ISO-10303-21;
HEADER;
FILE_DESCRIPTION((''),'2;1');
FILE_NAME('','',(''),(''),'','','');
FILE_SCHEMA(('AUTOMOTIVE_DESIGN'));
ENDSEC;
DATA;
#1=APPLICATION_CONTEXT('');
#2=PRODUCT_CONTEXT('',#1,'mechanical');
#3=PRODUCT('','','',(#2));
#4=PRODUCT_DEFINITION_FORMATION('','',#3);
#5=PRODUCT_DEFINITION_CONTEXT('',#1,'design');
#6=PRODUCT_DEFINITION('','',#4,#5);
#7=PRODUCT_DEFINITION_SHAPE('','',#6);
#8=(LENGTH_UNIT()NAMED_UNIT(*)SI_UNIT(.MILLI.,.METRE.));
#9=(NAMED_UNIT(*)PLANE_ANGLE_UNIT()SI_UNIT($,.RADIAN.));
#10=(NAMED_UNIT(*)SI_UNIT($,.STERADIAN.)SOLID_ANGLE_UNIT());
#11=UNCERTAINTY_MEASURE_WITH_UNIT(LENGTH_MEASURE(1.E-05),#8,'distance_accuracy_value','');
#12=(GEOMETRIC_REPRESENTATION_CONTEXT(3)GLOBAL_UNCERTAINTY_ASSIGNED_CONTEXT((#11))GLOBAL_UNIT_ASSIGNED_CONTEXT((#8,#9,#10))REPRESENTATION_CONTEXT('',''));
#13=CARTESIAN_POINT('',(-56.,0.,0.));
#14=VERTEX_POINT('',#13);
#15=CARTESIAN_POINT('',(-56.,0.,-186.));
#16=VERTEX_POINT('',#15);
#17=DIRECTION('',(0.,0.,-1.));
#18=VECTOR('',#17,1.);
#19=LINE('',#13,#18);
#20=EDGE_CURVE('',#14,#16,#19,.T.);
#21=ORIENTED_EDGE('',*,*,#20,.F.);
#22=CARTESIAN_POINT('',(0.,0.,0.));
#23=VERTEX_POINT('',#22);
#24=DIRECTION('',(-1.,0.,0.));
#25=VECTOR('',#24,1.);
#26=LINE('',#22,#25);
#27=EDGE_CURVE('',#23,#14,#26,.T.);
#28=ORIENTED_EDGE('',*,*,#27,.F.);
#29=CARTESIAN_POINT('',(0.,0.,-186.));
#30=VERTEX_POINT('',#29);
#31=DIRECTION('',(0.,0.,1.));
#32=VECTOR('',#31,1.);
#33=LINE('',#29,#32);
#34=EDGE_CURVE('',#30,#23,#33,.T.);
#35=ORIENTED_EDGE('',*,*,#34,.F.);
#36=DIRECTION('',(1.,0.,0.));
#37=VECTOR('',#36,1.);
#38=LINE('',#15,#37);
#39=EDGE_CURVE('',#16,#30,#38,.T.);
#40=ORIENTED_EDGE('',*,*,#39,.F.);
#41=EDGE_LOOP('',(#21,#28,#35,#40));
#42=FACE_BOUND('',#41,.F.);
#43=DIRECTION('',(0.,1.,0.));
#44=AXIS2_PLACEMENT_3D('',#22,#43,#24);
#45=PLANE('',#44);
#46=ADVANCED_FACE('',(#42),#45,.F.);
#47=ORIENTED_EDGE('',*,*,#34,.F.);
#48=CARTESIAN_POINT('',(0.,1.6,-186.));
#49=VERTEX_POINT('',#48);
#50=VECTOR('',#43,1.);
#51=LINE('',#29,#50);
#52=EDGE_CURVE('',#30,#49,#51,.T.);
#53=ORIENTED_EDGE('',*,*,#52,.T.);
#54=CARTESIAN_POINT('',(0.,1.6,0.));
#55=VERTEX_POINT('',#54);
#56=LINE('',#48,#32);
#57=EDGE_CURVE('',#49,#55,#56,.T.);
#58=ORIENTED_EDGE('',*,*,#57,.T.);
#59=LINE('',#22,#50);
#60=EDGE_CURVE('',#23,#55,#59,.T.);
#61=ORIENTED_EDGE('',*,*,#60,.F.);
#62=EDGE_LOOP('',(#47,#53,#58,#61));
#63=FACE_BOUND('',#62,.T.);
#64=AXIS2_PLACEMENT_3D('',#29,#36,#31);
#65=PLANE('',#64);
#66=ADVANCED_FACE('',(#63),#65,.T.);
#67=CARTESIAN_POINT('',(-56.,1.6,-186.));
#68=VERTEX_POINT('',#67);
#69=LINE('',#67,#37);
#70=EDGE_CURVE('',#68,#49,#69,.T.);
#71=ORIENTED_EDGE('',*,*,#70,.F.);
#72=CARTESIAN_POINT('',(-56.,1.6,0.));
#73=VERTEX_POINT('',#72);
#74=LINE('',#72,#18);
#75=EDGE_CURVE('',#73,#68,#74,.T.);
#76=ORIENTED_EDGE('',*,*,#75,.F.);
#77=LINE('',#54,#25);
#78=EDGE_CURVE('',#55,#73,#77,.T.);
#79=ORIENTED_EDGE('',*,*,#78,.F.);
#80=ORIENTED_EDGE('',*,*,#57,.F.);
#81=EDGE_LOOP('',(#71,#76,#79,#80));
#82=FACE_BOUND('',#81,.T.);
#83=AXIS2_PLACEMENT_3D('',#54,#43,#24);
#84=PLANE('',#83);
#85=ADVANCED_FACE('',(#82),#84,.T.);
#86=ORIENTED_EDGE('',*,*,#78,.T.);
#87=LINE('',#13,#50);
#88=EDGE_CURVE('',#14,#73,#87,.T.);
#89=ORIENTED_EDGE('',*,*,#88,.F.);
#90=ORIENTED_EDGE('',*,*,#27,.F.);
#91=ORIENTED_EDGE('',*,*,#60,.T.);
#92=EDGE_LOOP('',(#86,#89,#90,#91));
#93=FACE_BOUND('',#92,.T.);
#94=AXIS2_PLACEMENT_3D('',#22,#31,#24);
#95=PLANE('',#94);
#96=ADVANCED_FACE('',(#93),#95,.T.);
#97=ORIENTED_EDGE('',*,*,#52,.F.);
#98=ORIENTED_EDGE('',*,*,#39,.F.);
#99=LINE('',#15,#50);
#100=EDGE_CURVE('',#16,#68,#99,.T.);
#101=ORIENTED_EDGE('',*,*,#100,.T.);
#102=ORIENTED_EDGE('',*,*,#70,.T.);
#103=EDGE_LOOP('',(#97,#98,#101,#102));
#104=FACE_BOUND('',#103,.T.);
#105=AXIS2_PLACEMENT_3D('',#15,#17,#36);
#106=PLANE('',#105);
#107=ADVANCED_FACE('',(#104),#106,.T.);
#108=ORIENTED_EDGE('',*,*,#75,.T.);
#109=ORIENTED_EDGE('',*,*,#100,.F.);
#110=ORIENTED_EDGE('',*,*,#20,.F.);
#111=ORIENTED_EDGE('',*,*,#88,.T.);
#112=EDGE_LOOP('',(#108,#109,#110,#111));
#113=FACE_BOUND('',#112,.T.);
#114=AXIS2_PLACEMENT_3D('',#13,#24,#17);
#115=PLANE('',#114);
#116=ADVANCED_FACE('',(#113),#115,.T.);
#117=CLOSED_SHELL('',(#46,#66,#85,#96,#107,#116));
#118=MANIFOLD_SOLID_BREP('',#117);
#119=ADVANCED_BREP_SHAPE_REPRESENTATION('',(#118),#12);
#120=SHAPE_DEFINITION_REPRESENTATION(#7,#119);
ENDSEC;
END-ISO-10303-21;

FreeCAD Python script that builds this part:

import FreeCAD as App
import Part
import Sketcher
from FreeCAD import Vector
Q = App.Units.Quantity

doc = App.newDocument("Part")
body = doc.addObject("PartDesign::Body", "Body")

sketch1 = body.newObject("Sketcher::SketchObject", "Sketch")
sketch1.AttachmentSupport = (doc.getObject("XZ_Plane"), [""])
sketch1.MapMode = "FlatFace"
sketch1.addGeometry([
    Part.LineSegment(Vector(-56, 0, 0), Vector(0, 0, 0)),
    Part.LineSegment(Vector(0, 0, 0), Vector(0, -186, 0)),
    Part.LineSegment(Vector(0, -186, 0), Vector(-56, -186, 0)),
    Part.LineSegment(Vector(-56, -186, 0), Vector(-56, 0, 0)),
], False)
sketch1.addConstraint([
    Sketcher.Constraint("Coincident", 0, 2, 1, 1),
    Sketcher.Constraint("Coincident", 1, 2, 2, 1),
    Sketcher.Constraint("Coincident", 2, 2, 3, 1),
    Sketcher.Constraint("Coincident", 3, 2, 0, 1),
    Sketcher.Constraint("Horizontal", 0),
    Sketcher.Constraint("Vertical", 1),
    Sketcher.Constraint("Horizontal", 2),
    Sketcher.Constraint("Vertical", 3),
    Sketcher.Constraint("Coincident", 0, 2, -1, 1),
    Sketcher.Constraint("DistanceX", 0, 1, 0, 2, Q("56 mm")),
    Sketcher.Constraint("DistanceY", 1, 2, 1, 1, Q("186 mm")),
])
pad1 = body.newObject("PartDesign::Pad", "Pad")
pad1.Profile = sketch1
pad1.Length = 1.6
pad1.Reversed = True

doc.recompute()
